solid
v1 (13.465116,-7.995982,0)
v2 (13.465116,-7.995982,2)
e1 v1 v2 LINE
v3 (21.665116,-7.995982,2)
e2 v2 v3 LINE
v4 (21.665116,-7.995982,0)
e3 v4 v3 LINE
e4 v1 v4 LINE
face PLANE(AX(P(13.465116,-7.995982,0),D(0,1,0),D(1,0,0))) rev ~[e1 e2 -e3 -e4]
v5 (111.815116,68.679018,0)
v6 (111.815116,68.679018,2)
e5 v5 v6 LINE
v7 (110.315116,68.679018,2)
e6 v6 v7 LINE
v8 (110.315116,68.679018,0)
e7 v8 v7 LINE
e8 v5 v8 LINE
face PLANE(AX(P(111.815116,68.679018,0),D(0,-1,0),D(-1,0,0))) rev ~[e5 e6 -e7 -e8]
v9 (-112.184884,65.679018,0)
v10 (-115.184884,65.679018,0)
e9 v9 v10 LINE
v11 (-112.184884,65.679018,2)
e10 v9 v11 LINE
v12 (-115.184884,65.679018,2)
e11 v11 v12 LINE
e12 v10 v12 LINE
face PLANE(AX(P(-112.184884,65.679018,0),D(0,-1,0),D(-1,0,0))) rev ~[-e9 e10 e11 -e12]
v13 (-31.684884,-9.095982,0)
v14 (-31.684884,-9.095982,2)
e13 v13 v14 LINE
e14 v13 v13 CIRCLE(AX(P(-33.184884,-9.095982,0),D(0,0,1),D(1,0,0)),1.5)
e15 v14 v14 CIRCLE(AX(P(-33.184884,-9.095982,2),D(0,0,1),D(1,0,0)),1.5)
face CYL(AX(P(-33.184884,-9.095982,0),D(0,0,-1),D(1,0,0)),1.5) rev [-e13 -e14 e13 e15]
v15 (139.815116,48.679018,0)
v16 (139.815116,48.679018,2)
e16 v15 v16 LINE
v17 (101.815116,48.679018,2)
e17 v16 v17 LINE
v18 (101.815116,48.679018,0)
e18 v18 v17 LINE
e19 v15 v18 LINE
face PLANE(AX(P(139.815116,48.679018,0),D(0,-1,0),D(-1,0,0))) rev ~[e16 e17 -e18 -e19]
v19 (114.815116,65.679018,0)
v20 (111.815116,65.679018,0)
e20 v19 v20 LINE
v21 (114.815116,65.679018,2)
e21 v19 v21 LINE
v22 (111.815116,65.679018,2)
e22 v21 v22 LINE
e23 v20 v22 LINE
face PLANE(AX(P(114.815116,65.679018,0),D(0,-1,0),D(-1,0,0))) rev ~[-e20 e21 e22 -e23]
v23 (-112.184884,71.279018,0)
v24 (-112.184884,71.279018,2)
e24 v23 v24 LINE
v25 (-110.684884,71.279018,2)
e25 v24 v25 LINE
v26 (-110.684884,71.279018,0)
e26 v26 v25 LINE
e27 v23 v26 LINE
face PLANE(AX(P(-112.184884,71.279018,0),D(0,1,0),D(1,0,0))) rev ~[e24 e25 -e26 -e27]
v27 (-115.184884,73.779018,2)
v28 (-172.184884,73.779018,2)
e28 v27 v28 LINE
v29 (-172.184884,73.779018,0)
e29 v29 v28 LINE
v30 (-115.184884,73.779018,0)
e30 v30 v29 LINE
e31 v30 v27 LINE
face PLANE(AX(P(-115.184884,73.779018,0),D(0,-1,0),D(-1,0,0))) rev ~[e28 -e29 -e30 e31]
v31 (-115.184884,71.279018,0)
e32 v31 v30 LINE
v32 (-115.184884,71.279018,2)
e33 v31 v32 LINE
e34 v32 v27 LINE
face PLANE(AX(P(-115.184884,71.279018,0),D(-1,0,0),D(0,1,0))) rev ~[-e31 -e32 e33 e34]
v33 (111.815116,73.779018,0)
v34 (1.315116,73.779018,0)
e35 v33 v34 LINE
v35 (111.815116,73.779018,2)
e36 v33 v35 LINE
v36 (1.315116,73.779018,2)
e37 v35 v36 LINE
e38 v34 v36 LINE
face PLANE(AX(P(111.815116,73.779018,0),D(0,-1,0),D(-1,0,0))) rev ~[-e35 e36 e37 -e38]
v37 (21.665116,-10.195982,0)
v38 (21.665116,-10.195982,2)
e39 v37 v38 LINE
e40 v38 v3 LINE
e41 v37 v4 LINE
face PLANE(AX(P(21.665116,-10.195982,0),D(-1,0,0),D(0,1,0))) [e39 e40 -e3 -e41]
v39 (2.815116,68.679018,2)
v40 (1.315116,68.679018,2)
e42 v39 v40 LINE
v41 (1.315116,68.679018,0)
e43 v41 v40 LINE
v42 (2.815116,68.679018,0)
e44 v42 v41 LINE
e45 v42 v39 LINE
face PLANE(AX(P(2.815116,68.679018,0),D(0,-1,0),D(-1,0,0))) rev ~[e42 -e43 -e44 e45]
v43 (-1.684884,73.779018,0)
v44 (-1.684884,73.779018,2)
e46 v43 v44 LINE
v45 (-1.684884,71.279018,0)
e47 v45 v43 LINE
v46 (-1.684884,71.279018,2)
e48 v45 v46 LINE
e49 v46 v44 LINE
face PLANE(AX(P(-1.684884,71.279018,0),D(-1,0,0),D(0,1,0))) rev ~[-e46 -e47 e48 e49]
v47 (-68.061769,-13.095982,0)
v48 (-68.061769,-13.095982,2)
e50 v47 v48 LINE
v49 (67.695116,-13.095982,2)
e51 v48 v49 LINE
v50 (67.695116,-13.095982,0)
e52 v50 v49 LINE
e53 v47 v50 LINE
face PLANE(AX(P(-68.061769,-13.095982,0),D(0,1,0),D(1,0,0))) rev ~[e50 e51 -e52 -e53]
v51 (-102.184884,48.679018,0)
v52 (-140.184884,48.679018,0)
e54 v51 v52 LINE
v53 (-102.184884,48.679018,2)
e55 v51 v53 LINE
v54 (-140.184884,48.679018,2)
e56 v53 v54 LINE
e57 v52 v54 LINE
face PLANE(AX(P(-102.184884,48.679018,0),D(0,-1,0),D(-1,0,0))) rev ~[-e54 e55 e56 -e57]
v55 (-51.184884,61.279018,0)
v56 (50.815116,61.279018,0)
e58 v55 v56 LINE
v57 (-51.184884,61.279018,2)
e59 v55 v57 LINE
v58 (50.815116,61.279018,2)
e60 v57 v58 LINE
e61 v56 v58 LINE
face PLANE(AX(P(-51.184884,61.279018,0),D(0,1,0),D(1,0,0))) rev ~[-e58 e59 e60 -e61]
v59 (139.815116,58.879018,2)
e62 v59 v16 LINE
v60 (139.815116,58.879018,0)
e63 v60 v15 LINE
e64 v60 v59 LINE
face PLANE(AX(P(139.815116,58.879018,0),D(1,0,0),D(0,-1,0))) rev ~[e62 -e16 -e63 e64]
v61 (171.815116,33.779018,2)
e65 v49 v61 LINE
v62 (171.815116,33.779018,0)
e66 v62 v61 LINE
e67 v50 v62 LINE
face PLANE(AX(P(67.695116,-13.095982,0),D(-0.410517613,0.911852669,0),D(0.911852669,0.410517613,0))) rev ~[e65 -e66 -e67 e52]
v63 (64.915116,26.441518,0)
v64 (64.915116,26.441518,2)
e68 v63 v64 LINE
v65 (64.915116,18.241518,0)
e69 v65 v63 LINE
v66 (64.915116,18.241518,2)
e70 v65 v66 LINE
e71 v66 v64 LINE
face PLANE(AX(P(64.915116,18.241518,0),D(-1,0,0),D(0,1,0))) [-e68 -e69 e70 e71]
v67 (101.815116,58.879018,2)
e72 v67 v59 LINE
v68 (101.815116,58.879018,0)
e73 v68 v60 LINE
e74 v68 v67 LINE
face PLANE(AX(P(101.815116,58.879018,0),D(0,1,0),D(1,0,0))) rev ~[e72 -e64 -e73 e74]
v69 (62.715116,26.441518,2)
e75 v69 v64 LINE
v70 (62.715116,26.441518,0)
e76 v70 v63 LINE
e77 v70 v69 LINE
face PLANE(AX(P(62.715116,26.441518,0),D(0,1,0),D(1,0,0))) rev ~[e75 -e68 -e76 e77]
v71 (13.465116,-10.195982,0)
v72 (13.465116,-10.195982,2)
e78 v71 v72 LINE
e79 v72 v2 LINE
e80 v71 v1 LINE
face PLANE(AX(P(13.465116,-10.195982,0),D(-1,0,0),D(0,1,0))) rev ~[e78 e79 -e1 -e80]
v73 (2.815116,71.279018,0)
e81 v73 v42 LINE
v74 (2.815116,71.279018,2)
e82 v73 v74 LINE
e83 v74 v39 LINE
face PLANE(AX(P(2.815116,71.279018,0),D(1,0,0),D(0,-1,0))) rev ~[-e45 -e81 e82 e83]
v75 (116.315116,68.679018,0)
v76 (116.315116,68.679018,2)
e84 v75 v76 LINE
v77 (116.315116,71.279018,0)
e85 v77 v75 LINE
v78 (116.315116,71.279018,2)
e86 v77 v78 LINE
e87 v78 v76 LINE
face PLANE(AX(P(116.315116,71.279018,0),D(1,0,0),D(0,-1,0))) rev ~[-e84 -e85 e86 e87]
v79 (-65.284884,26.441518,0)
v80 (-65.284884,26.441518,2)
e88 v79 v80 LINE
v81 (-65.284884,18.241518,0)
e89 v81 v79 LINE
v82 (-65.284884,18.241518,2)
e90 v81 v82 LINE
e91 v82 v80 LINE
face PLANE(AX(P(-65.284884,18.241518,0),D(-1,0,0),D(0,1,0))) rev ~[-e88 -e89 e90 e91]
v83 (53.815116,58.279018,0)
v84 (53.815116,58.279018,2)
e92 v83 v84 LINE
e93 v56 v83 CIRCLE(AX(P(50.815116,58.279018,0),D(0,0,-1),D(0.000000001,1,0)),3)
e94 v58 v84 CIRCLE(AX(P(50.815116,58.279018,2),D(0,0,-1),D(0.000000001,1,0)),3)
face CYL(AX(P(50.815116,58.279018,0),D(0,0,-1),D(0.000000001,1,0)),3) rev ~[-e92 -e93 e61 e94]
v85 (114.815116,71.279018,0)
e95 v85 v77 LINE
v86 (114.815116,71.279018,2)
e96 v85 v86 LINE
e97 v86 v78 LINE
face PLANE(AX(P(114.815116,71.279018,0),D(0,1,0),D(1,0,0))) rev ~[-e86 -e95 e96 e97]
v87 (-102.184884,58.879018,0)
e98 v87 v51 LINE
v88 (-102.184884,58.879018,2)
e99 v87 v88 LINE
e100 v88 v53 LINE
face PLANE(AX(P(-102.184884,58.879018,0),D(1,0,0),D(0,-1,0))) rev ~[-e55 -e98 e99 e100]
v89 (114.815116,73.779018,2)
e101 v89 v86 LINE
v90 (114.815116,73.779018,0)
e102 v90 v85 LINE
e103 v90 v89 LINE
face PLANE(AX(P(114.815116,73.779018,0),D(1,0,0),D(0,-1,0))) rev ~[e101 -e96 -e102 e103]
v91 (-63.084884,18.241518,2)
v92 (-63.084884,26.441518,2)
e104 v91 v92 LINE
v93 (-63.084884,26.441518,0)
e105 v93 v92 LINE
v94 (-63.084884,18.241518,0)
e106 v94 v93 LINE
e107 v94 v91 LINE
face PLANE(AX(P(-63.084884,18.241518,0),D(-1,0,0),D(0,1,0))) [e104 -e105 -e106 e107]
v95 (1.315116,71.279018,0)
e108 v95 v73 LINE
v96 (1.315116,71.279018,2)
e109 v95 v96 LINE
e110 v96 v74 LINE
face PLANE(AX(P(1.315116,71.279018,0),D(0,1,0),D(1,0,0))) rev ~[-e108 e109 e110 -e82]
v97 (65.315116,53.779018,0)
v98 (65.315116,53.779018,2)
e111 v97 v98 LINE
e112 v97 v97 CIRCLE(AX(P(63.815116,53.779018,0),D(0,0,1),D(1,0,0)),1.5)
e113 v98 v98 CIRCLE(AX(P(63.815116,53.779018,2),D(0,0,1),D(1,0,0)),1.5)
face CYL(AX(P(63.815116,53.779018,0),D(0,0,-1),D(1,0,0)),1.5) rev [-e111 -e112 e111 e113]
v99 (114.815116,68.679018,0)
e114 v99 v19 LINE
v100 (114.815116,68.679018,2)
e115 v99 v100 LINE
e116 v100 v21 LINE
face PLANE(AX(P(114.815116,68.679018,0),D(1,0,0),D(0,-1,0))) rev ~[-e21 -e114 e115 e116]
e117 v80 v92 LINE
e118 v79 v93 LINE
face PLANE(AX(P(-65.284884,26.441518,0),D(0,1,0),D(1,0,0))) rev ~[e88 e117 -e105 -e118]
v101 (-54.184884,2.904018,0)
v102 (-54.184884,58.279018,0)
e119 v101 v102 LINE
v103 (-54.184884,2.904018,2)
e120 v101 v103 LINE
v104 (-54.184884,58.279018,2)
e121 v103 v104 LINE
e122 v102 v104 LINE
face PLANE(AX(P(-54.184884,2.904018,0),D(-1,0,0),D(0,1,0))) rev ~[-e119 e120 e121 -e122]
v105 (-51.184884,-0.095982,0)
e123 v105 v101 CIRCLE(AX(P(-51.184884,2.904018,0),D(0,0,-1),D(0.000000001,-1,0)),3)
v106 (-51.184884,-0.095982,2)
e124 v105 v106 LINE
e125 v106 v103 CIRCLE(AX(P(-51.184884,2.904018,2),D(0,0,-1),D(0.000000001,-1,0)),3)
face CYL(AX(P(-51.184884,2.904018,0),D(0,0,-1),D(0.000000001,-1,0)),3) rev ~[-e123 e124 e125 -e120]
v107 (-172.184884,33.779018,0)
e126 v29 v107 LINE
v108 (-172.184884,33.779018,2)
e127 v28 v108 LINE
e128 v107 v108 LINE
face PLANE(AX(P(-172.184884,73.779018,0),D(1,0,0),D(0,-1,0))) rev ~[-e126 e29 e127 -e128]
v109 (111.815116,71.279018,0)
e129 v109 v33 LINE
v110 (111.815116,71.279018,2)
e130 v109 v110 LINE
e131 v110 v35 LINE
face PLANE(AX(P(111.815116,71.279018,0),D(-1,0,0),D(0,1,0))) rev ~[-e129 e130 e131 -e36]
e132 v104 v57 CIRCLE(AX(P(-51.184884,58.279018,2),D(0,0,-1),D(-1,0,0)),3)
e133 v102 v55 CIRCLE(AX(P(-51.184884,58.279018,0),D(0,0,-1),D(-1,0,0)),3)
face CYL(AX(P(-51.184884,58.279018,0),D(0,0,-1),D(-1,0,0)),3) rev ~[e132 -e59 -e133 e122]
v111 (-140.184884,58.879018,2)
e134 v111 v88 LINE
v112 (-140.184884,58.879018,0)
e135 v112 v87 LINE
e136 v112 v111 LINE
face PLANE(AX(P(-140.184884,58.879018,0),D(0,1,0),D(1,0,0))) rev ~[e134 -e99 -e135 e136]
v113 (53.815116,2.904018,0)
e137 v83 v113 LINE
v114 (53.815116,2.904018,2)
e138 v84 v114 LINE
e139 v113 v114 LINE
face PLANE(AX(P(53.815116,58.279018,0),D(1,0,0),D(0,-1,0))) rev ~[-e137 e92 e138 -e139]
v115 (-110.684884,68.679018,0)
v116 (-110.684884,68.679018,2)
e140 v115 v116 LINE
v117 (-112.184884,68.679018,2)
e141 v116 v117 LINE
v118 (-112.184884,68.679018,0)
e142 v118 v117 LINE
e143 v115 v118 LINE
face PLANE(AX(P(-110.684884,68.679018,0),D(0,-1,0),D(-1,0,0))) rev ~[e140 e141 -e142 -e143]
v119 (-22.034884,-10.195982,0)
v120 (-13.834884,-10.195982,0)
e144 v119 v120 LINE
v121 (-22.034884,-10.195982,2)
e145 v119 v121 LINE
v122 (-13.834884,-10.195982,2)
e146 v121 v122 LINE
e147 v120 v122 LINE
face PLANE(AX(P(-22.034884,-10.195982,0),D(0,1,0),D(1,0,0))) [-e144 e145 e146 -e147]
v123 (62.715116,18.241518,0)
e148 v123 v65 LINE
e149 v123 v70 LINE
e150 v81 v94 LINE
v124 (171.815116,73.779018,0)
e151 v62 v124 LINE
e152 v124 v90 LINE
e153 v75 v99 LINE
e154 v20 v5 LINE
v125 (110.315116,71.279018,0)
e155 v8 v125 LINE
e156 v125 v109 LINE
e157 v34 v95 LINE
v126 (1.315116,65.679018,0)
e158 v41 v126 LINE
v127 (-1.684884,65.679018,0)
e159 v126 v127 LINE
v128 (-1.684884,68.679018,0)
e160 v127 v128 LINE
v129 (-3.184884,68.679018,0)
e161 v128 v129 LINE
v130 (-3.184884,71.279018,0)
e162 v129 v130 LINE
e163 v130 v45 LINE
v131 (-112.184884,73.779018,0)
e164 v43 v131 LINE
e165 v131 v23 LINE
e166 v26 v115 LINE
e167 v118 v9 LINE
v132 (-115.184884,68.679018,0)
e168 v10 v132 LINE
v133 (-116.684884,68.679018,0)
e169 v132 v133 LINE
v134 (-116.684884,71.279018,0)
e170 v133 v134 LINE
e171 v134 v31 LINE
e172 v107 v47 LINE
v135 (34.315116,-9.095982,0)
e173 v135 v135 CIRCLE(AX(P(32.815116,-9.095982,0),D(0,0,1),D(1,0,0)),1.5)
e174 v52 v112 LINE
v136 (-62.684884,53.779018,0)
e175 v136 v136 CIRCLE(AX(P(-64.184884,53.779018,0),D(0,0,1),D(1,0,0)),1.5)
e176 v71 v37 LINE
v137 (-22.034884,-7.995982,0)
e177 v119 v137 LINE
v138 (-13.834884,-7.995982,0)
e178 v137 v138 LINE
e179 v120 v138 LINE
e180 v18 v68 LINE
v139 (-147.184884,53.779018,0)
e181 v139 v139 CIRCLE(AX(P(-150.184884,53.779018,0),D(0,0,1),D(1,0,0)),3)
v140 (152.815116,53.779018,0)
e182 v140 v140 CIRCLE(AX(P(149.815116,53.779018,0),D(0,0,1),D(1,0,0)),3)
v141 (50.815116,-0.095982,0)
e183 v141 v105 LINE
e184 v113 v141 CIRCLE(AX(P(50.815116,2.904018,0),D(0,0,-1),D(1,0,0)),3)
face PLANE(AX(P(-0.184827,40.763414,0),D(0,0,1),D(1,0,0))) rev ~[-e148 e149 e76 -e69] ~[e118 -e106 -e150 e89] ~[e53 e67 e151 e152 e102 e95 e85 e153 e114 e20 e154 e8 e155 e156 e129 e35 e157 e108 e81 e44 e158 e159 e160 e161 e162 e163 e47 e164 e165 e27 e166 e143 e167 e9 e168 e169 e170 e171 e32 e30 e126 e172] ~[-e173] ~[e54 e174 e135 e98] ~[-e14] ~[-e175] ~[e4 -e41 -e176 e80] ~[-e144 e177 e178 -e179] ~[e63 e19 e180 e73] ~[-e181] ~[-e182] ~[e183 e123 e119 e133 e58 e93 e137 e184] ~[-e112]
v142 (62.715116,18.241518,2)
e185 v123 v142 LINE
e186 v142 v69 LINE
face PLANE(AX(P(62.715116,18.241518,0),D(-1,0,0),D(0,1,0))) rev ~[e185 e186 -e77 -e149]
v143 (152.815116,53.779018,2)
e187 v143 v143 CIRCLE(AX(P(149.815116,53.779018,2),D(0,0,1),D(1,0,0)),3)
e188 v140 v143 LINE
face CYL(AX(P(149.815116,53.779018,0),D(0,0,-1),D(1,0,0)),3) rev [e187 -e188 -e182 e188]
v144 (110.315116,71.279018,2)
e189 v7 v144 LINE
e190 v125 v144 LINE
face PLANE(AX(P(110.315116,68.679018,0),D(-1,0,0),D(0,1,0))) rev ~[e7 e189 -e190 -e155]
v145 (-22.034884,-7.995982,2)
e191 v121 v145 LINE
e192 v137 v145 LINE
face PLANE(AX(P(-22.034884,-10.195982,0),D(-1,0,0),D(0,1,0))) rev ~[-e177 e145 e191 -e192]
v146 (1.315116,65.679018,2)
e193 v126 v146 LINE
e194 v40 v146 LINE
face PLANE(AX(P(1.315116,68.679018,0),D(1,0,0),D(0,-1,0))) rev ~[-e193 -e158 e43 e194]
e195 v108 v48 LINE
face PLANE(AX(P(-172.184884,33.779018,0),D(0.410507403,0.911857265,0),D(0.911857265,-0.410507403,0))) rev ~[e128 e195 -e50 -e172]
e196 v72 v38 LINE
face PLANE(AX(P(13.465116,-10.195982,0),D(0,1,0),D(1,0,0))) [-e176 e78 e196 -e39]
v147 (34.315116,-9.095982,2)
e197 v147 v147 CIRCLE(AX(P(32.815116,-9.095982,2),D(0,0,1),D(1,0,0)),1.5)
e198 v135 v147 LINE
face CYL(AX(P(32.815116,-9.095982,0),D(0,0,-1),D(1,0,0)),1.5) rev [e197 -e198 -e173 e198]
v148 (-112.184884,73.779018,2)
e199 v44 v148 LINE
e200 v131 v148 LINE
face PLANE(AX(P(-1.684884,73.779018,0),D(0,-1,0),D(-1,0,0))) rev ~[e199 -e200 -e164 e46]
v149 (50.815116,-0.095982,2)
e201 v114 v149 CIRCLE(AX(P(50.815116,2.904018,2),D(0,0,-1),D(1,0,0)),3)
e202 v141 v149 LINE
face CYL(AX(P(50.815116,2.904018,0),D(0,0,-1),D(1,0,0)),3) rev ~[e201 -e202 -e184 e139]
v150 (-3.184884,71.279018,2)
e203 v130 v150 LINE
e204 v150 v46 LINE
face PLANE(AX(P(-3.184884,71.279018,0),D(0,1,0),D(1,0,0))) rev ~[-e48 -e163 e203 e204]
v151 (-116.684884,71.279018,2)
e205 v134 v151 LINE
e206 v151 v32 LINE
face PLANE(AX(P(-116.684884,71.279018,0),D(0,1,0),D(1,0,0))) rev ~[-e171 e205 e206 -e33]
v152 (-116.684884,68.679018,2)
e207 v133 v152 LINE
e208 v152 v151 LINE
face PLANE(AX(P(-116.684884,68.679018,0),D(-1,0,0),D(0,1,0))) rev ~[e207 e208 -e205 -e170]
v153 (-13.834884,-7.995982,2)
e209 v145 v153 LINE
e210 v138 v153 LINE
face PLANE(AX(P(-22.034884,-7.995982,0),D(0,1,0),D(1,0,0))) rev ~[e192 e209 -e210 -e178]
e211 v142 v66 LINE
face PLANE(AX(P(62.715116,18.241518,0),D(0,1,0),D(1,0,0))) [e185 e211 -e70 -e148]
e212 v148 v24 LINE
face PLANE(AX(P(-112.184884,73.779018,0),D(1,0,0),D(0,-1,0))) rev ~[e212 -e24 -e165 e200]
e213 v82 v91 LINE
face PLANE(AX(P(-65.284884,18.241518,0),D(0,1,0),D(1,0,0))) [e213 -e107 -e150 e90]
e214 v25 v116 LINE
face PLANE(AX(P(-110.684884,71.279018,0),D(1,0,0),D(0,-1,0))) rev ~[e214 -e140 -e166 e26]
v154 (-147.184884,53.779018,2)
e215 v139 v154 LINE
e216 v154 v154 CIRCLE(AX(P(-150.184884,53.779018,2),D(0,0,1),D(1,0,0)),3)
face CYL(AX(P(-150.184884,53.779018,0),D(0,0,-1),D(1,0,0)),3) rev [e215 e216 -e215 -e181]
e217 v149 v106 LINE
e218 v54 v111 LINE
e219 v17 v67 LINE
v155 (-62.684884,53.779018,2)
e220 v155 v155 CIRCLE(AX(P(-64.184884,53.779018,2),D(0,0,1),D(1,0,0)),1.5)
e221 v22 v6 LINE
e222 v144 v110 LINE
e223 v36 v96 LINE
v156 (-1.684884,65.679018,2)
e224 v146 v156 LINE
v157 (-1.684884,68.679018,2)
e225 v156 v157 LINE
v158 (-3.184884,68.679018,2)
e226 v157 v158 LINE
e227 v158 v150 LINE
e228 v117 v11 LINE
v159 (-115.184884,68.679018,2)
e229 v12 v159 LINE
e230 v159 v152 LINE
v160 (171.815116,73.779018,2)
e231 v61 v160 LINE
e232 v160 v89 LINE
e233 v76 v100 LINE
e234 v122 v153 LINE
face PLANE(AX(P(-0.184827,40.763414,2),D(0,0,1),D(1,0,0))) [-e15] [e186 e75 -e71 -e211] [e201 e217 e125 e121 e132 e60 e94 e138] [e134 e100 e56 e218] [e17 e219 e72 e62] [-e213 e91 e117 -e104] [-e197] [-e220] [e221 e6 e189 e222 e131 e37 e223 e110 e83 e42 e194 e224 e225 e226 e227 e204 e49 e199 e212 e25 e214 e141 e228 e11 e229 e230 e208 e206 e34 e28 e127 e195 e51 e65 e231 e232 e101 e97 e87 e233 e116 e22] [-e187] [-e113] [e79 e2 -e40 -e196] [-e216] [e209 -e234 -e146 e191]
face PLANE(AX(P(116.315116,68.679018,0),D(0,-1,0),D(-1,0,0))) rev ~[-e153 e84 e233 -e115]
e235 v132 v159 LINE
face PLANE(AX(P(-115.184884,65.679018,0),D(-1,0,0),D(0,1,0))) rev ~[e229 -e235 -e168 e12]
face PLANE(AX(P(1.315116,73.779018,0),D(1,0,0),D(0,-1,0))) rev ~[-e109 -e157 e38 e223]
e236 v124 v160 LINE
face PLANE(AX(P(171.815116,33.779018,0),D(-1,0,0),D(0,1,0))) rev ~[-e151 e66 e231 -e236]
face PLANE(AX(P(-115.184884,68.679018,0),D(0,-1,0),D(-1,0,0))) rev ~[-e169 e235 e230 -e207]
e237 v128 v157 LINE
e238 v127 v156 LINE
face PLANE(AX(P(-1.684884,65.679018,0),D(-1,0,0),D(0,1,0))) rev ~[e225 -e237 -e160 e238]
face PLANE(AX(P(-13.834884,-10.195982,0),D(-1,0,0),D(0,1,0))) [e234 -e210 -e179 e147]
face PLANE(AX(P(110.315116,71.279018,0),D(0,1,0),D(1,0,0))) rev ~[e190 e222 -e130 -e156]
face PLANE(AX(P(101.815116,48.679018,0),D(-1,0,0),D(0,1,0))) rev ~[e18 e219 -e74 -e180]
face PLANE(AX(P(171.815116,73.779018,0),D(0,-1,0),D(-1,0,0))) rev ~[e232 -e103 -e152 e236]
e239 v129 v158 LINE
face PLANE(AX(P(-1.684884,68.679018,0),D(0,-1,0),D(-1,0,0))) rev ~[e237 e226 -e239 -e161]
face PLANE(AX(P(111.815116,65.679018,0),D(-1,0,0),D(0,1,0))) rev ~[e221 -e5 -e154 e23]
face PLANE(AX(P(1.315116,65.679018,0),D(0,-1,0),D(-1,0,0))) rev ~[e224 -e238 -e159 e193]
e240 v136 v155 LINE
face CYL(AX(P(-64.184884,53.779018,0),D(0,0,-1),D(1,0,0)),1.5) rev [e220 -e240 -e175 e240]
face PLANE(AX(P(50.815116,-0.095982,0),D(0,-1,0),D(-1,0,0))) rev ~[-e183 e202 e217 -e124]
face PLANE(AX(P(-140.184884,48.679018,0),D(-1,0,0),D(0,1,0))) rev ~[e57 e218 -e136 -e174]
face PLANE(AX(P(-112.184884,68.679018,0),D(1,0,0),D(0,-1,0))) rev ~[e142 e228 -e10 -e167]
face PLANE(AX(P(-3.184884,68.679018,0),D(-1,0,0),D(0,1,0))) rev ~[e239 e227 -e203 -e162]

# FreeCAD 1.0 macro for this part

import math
import FreeCAD as App
import Part
import Sketcher
from FreeCAD import Vector
Q = App.Units.Quantity

doc = App.newDocument("Part")
params = doc.addObject("Spreadsheet::Sheet", "Params")
for row, (alias, value) in enumerate([
    ("sketch1_diameter", "3 mm"),
    ("sketch1_diameter2", "6 mm"),
    ("sketch1_width", "57 mm"),
    ("sketch1_width2", "3 mm"),
    ("sketch1_width3", "102 mm"),
    ("pad1_length", "2 mm"),
], start=1):
    params.set(f"A{row}", alias)
    params.set(f"B{row}", "=" + value)
    params.setAlias(f"B{row}", alias)

body = doc.addObject("PartDesign::Body", "Body")

# Sketch on XY plane
sketch1 = body.newObject("Sketcher::SketchObject", "Sketch")
sketch1.AttachmentSupport = (doc.getObject("XY_Plane"), [""])
sketch1.MapMode = "FlatFace"
sketch1.addGeometry(Part.LineSegment(Vector(-68.1, -13.1, 0), Vector(67.7, -13.1, 0)), False)
sketch1.addGeometry(Part.LineSegment(Vector(67.7, -13.1, 0), Vector(171.8, 33.8, 0)), False)
sketch1.addGeometry(Part.LineSegment(Vector(171.8, 33.8, 0), Vector(171.8, 73.8, 0)), False)
sketch1.addGeometry(Part.LineSegment(Vector(171.8, 73.8, 0), Vector(114.8, 73.8, 0)), False)
sketch1.addGeometry(Part.LineSegment(Vector(114.8, 73.8, 0), Vector(114.8, 71.3, 0)), False)
sketch1.addGeometry(Part.LineSegment(Vector(114.8, 71.3, 0), Vector(116.3, 71.3, 0)), False)
sketch1.addGeometry(Part.LineSegment(Vector(116.3, 71.3, 0), Vector(116.3, 68.7, 0)), False)
sketch1.addGeometry(Part.LineSegment(Vector(116.3, 68.7, 0), Vector(114.8, 68.7, 0)), False)
sketch1.addGeometry(Part.LineSegment(Vector(114.8, 68.7, 0), Vector(114.8, 65.7, 0)), False)
sketch1.addGeometry(Part.LineSegment(Vector(114.8, 65.7, 0), Vector(111.8, 65.7, 0)), False)
sketch1.addGeometry(Part.LineSegment(Vector(111.8, 65.7, 0), Vector(111.8, 68.7, 0)), False)
sketch1.addGeometry(Part.LineSegment(Vector(111.8, 68.7, 0), Vector(110.3, 68.7, 0)), False)
sketch1.addGeometry(Part.LineSegment(Vector(110.3, 68.7, 0), Vector(110.3, 71.3, 0)), False)
sketch1.addGeometry(Part.LineSegment(Vector(110.3, 71.3, 0), Vector(111.8, 71.3, 0)), False)
sketch1.addGeometry(Part.LineSegment(Vector(111.8, 71.3, 0), Vector(111.8, 73.8, 0)), False)
sketch1.addGeometry(Part.LineSegment(Vector(111.8, 73.8, 0), Vector(1.3, 73.8, 0)), False)
sketch1.addGeometry(Part.LineSegment(Vector(1.3, 73.8, 0), Vector(1.3, 71.3, 0)), False)
sketch1.addGeometry(Part.LineSegment(Vector(1.3, 71.3, 0), Vector(2.8, 71.3, 0)), False)
sketch1.addGeometry(Part.LineSegment(Vector(2.8, 71.3, 0), Vector(2.8, 68.7, 0)), False)
sketch1.addGeometry(Part.LineSegment(Vector(2.8, 68.7, 0), Vector(1.3, 68.7, 0)), False)
sketch1.addGeometry(Part.LineSegment(Vector(1.3, 68.7, 0), Vector(1.3, 65.7, 0)), False)
sketch1.addGeometry(Part.LineSegment(Vector(1.3, 65.7, 0), Vector(-1.7, 65.7, 0)), False)
sketch1.addGeometry(Part.LineSegment(Vector(-1.7, 65.7, 0), Vector(-1.7, 68.7, 0)), False)
sketch1.addGeometry(Part.LineSegment(Vector(-1.7, 68.7, 0), Vector(-3.2, 68.7, 0)), False)
sketch1.addGeometry(Part.LineSegment(Vector(-3.2, 68.7, 0), Vector(-3.2, 71.3, 0)), False)
sketch1.addGeometry(Part.LineSegment(Vector(-3.2, 71.3, 0), Vector(-1.7, 71.3, 0)), False)
sketch1.addGeometry(Part.LineSegment(Vector(-1.7, 71.3, 0), Vector(-1.7, 73.8, 0)), False)
sketch1.addGeometry(Part.LineSegment(Vector(-1.7, 73.8, 0), Vector(-112.2, 73.8, 0)), False)
sketch1.addGeometry(Part.LineSegment(Vector(-112.2, 73.8, 0), Vector(-112.2, 71.3, 0)), False)
sketch1.addGeometry(Part.LineSegment(Vector(-112.2, 71.3, 0), Vector(-110.7, 71.3, 0)), False)
sketch1.addGeometry(Part.LineSegment(Vector(-110.7, 71.3, 0), Vector(-110.7, 68.7, 0)), False)
sketch1.addGeometry(Part.LineSegment(Vector(-110.7, 68.7, 0), Vector(-112.2, 68.7, 0)), False)
sketch1.addGeometry(Part.LineSegment(Vector(-112.2, 68.7, 0), Vector(-112.2, 65.7, 0)), False)
sketch1.addGeometry(Part.LineSegment(Vector(-112.2, 65.7, 0), Vector(-115.2, 65.7, 0)), False)
sketch1.addGeometry(Part.LineSegment(Vector(-115.2, 65.7, 0), Vector(-115.2, 68.7, 0)), False)
sketch1.addGeometry(Part.LineSegment(Vector(-115.2, 68.7, 0), Vector(-116.7, 68.7, 0)), False)
sketch1.addGeometry(Part.LineSegment(Vector(-116.7, 68.7, 0), Vector(-116.7, 71.3, 0)), False)
sketch1.addGeometry(Part.LineSegment(Vector(-116.7, 71.3, 0), Vector(-115.2, 71.3, 0)), False)
sketch1.addGeometry(Part.LineSegment(Vector(-115.2, 71.3, 0), Vector(-115.2, 73.8, 0)), False)
sketch1.addGeometry(Part.LineSegment(Vector(-115.2, 73.8, 0), Vector(-172.2, 73.8, 0)), False)
sketch1.addGeometry(Part.LineSegment(Vector(-172.2, 73.8, 0), Vector(-172.2, 33.8, 0)), False)
sketch1.addGeometry(Part.LineSegment(Vector(-172.2, 33.8, 0), Vector(-68.1, -13.1, 0)), False)
sketch1.addGeometry(Part.Circle(Vector(-33.2, -9.1, 0), Vector(0, 0, 1), 1.5), False)
sketch1.addGeometry(Part.LineSegment(Vector(-13.8, -10.2, 0), Vector(-22, -10.2, 0)), False)
sketch1.addGeometry(Part.LineSegment(Vector(-22, -10.2, 0), Vector(-22, -8, 0)), False)
sketch1.addGeometry(Part.LineSegment(Vector(-22, -8, 0), Vector(-13.8, -8, 0)), False)
sketch1.addGeometry(Part.LineSegment(Vector(-13.8, -8, 0), Vector(-13.8, -10.2, 0)), False)
sketch1.addGeometry(Part.LineSegment(Vector(-63.1, 18.2, 0), Vector(-65.3, 18.2, 0)), False)
sketch1.addGeometry(Part.LineSegment(Vector(-65.3, 18.2, 0), Vector(-65.3, 26.4, 0)), False)
sketch1.addGeometry(Part.LineSegment(Vector(-65.3, 26.4, 0), Vector(-63.1, 26.4, 0)), False)
sketch1.addGeometry(Part.LineSegment(Vector(-63.1, 26.4, 0), Vector(-63.1, 18.2, 0)), False)
sketch1.addGeometry(Part.LineSegment(Vector(21.7, -10.2, 0), Vector(13.5, -10.2, 0)), False)
sketch1.addGeometry(Part.LineSegment(Vector(13.5, -10.2, 0), Vector(13.5, -8, 0)), False)
sketch1.addGeometry(Part.LineSegment(Vector(13.5, -8, 0), Vector(21.7, -8, 0)), False)
sketch1.addGeometry(Part.LineSegment(Vector(21.7, -8, 0), Vector(21.7, -10.2, 0)), False)
sketch1.addGeometry(Part.Circle(Vector(32.8, -9.1, 0), Vector(0, 0, 1), 1.5), False)
sketch1.addGeometry(Part.LineSegment(Vector(64.9, 18.2, 0), Vector(62.7, 18.2, 0)), False)
sketch1.addGeometry(Part.LineSegment(Vector(62.7, 18.2, 0), Vector(62.7, 26.4, 0)), False)
sketch1.addGeometry(Part.LineSegment(Vector(62.7, 26.4, 0), Vector(64.9, 26.4, 0)), False)
sketch1.addGeometry(Part.LineSegment(Vector(64.9, 26.4, 0), Vector(64.9, 18.2, 0)), False)
sketch1.addGeometry(Part.LineSegment(Vector(-51.2, 61.3, 0), Vector(50.8, 61.3, 0)), False)
sketch1.addGeometry(Part.ArcOfCircle(Part.Circle(Vector(50.8, 58.3, 0), Vector(0, 0, 1), 3), math.radians(0), math.radians(90)), False)
sketch1.addGeometry(Part.LineSegment(Vector(53.8, 58.3, 0), Vector(53.8, 2.9, 0)), False)
sketch1.addGeometry(Part.ArcOfCircle(Part.Circle(Vector(50.8, 2.9, 0), Vector(0, 0, 1), 3), math.radians(-90), math.radians(0)), False)
sketch1.addGeometry(Part.LineSegment(Vector(50.8, -0.1, 0), Vector(-51.2, -0.1, 0)), False)
sketch1.addGeometry(Part.ArcOfCircle(Part.Circle(Vector(-51.2, 2.9, 0), Vector(0, 0, 1), 3), math.radians(180), math.radians(270)), False)
sketch1.addGeometry(Part.LineSegment(Vector(-54.2, 2.9, 0), Vector(-54.2, 58.3, 0)), False)
sketch1.addGeometry(Part.ArcOfCircle(Part.Circle(Vector(-51.2, 58.3, 0), Vector(0, 0, 1), 3), math.radians(90), math.radians(180)), False)
sketch1.addGeometry(Part.Circle(Vector(-150.2, 53.8, 0), Vector(0, 0, 1), 3), False)
sketch1.addGeometry(Part.LineSegment(Vector(-140.2, 48.7, 0), Vector(-140.2, 58.9, 0)), False)
sketch1.addGeometry(Part.LineSegment(Vector(-140.2, 58.9, 0), Vector(-102.2, 58.9, 0)), False)
sketch1.addGeometry(Part.LineSegment(Vector(-102.2, 58.9, 0), Vector(-102.2, 48.7, 0)), False)
sketch1.addGeometry(Part.LineSegment(Vector(-102.2, 48.7, 0), Vector(-140.2, 48.7, 0)), False)
sketch1.addGeometry(Part.Circle(Vector(-64.2, 53.8, 0), Vector(0, 0, 1), 1.5), False)
sketch1.addGeometry(Part.Circle(Vector(63.8, 53.8, 0), Vector(0, 0, 1), 1.5), False)
sketch1.addGeometry(Part.LineSegment(Vector(139.8, 58.9, 0), Vector(139.8, 48.7, 0)), False)
sketch1.addGeometry(Part.LineSegment(Vector(139.8, 48.7, 0), Vector(101.8, 48.7, 0)), False)
sketch1.addGeometry(Part.LineSegment(Vector(101.8, 48.7, 0), Vector(101.8, 58.9, 0)), False)
sketch1.addGeometry(Part.LineSegment(Vector(101.8, 58.9, 0), Vector(139.8, 58.9, 0)), False)
sketch1.addGeometry(Part.Circle(Vector(149.8, 53.8, 0), Vector(0, 0, 1), 3), False)
sketch1.addConstraint(Sketcher.Constraint("Coincident", 0, 2, 1, 1))
sketch1.addConstraint(Sketcher.Constraint("Coincident", 1, 2, 2, 1))
sketch1.addConstraint(Sketcher.Constraint("Coincident", 2, 2, 3, 1))
sketch1.addConstraint(Sketcher.Constraint("Coincident", 3, 2, 4, 1))
sketch1.addConstraint(Sketcher.Constraint("Coincident", 4, 2, 5, 1))
sketch1.addConstraint(Sketcher.Constraint("Coincident", 5, 2, 6, 1))
sketch1.addConstraint(Sketcher.Constraint("Coincident", 6, 2, 7, 1))
sketch1.addConstraint(Sketcher.Constraint("Coincident", 7, 2, 8, 1))
sketch1.addConstraint(Sketcher.Constraint("Coincident", 8, 2, 9, 1))
sketch1.addConstraint(Sketcher.Constraint("Coincident", 9, 2, 10, 1))
sketch1.addConstraint(Sketcher.Constraint("Coincident", 10, 2, 11, 1))
sketch1.addConstraint(Sketcher.Constraint("Coincident", 11, 2, 12, 1))
sketch1.addConstraint(Sketcher.Constraint("Coincident", 12, 2, 13, 1))
sketch1.addConstraint(Sketcher.Constraint("Coincident", 13, 2, 14, 1))
sketch1.addConstraint(Sketcher.Constraint("Coincident", 14, 2, 15, 1))
sketch1.addConstraint(Sketcher.Constraint("Coincident", 15, 2, 16, 1))
sketch1.addConstraint(Sketcher.Constraint("Coincident", 16, 2, 17, 1))
sketch1.addConstraint(Sketcher.Constraint("Coincident", 17, 2, 18, 1))
sketch1.addConstraint(Sketcher.Constraint("Coincident", 18, 2, 19, 1))
sketch1.addConstraint(Sketcher.Constraint("Coincident", 19, 2, 20, 1))
sketch1.addConstraint(Sketcher.Constraint("Coincident", 20, 2, 21, 1))
sketch1.addConstraint(Sketcher.Constraint("Coincident", 21, 2, 22, 1))
sketch1.addConstraint(Sketcher.Constraint("Coincident", 22, 2, 23, 1))
sketch1.addConstraint(Sketcher.Constraint("Coincident", 23, 2, 24, 1))
sketch1.addConstraint(Sketcher.Constraint("Coincident", 24, 2, 25, 1))
sketch1.addConstraint(Sketcher.Constraint("Coincident", 25, 2, 26, 1))
sketch1.addConstraint(Sketcher.Constraint("Coincident", 26, 2, 27, 1))
sketch1.addConstraint(Sketcher.Constraint("Coincident", 27, 2, 28, 1))
sketch1.addConstraint(Sketcher.Constraint("Coincident", 28, 2, 29, 1))
sketch1.addConstraint(Sketcher.Constraint("Coincident", 29, 2, 30, 1))
sketch1.addConstraint(Sketcher.Constraint("Coincident", 30, 2, 31, 1))
sketch1.addConstraint(Sketcher.Constraint("Coincident", 31, 2, 32, 1))
sketch1.addConstraint(Sketcher.Constraint("Coincident", 32, 2, 33, 1))
sketch1.addConstraint(Sketcher.Constraint("Coincident", 33, 2, 34, 1))
sketch1.addConstraint(Sketcher.Constraint("Coincident", 34, 2, 35, 1))
sketch1.addConstraint(Sketcher.Constraint("Coincident", 35, 2, 36, 1))
sketch1.addConstraint(Sketcher.Constraint("Coincident", 36, 2, 37, 1))
sketch1.addConstraint(Sketcher.Constraint("Coincident", 37, 2, 38, 1))
sketch1.addConstraint(Sketcher.Constraint("Coincident", 38, 2, 39, 1))
sketch1.addConstraint(Sketcher.Constraint("Coincident", 39, 2, 40, 1))
sketch1.addConstraint(Sketcher.Constraint("Coincident", 40, 2, 41, 1))
sketch1.addConstraint(Sketcher.Constraint("Coincident", 41, 2, 0, 1))
sketch1.addConstraint(Sketcher.Constraint("Coincident", 43, 2, 44, 1))
sketch1.addConstraint(Sketcher.Constraint("Coincident", 44, 2, 45, 1))
sketch1.addConstraint(Sketcher.Constraint("Coincident", 45, 2, 46, 1))
sketch1.addConstraint(Sketcher.Constraint("Coincident", 46, 2, 43, 1))
sketch1.addConstraint(Sketcher.Constraint("Coincident", 47, 2, 48, 1))
sketch1.addConstraint(Sketcher.Constraint("Coincident", 48, 2, 49, 1))
sketch1.addConstraint(Sketcher.Constraint("Coincident", 49, 2, 50, 1))
sketch1.addConstraint(Sketcher.Constraint("Coincident", 50, 2, 47, 1))
sketch1.addConstraint(Sketcher.Constraint("Coincident", 51, 2, 52, 1))
sketch1.addConstraint(Sketcher.Constraint("Coincident", 52, 2, 53, 1))
sketch1.addConstraint(Sketcher.Constraint("Coincident", 53, 2, 54, 1))
sketch1.addConstraint(Sketcher.Constraint("Coincident", 54, 2, 51, 1))
sketch1.addConstraint(Sketcher.Constraint("Coincident", 56, 2, 57, 1))
sketch1.addConstraint(Sketcher.Constraint("Coincident", 57, 2, 58, 1))
sketch1.addConstraint(Sketcher.Constraint("Coincident", 58, 2, 59, 1))
sketch1.addConstraint(Sketcher.Constraint("Coincident", 59, 2, 56, 1))
sketch1.addConstraint(Sketcher.Constraint("Tangent", 60, 2, 61, 2))
sketch1.addConstraint(Sketcher.Constraint("Tangent", 61, 1, 62, 1))
sketch1.addConstraint(Sketcher.Constraint("Tangent", 62, 2, 63, 2))
sketch1.addConstraint(Sketcher.Constraint("Tangent", 63, 1, 64, 1))
sketch1.addConstraint(Sketcher.Constraint("Tangent", 64, 2, 65, 2))
sketch1.addConstraint(Sketcher.Constraint("Tangent", 65, 1, 66, 1))
sketch1.addConstraint(Sketcher.Constraint("Tangent", 66, 2, 67, 2))
sketch1.addConstraint(Sketcher.Constraint("Tangent", 67, 1, 60, 1))
sketch1.addConstraint(Sketcher.Constraint("Coincident", 69, 2, 70, 1))
sketch1.addConstraint(Sketcher.Constraint("Coincident", 70, 2, 71, 1))
sketch1.addConstraint(Sketcher.Constraint("Coincident", 71, 2, 72, 1))
sketch1.addConstraint(Sketcher.Constraint("Coincident", 72, 2, 69, 1))
sketch1.addConstraint(Sketcher.Constraint("Coincident", 75, 2, 76, 1))
sketch1.addConstraint(Sketcher.Constraint("Coincident", 76, 2, 77, 1))
sketch1.addConstraint(Sketcher.Constraint("Coincident", 77, 2, 78, 1))
sketch1.addConstraint(Sketcher.Constraint("Coincident", 78, 2, 75, 1))
sketch1.addConstraint(Sketcher.Constraint("Horizontal", 0))
sketch1.addConstraint(Sketcher.Constraint("Vertical", 2))
sketch1.addConstraint(Sketcher.Constraint("Horizontal", 3))
sketch1.addConstraint(Sketcher.Constraint("Vertical", 4))
sketch1.addConstraint(Sketcher.Constraint("Horizontal", 5))
sketch1.addConstraint(Sketcher.Constraint("Vertical", 6))
sketch1.addConstraint(Sketcher.Constraint("Horizontal", 7))
sketch1.addConstraint(Sketcher.Constraint("Vertical", 8))
sketch1.addConstraint(Sketcher.Constraint("Horizontal", 9))
sketch1.addConstraint(Sketcher.Constraint("Vertical", 10))
sketch1.addConstraint(Sketcher.Constraint("Horizontal", 11))
sketch1.addConstraint(Sketcher.Constraint("Vertical", 12))
sketch1.addConstraint(Sketcher.Constraint("Horizontal", 13))
sketch1.addConstraint(Sketcher.Constraint("Vertical", 14))
sketch1.addConstraint(Sketcher.Constraint("Horizontal", 15))
sketch1.addConstraint(Sketcher.Constraint("Vertical", 16))
sketch1.addConstraint(Sketcher.Constraint("Horizontal", 17))
sketch1.addConstraint(Sketcher.Constraint("Vertical", 18))
sketch1.addConstraint(Sketcher.Constraint("Horizontal", 19))
sketch1.addConstraint(Sketcher.Constraint("Vertical", 20))
sketch1.addConstraint(Sketcher.Constraint("Horizontal", 21))
sketch1.addConstraint(Sketcher.Constraint("Vertical", 22))
sketch1.addConstraint(Sketcher.Constraint("Horizontal", 23))
sketch1.addConstraint(Sketcher.Constraint("Vertical", 24))
sketch1.addConstraint(Sketcher.Constraint("Horizontal", 25))
sketch1.addConstraint(Sketcher.Constraint("Vertical", 26))
sketch1.addConstraint(Sketcher.Constraint("Horizontal", 27))
sketch1.addConstraint(Sketcher.Constraint("Vertical", 28))
sketch1.addConstraint(Sketcher.Constraint("Horizontal", 29))
sketch1.addConstraint(Sketcher.Constraint("Vertical", 30))
sketch1.addConstraint(Sketcher.Constraint("Horizontal", 31))
sketch1.addConstraint(Sketcher.Constraint("Vertical", 32))
sketch1.addConstraint(Sketcher.Constraint("Horizontal", 33))
sketch1.addConstraint(Sketcher.Constraint("Vertical", 34))
sketch1.addConstraint(Sketcher.Constraint("Horizontal", 35))
sketch1.addConstraint(Sketcher.Constraint("Vertical", 36))
sketch1.addConstraint(Sketcher.Constraint("Horizontal", 37))
sketch1.addConstraint(Sketcher.Constraint("Vertical", 38))
sketch1.addConstraint(Sketcher.Constraint("Horizontal", 39))
sketch1.addConstraint(Sketcher.Constraint("Vertical", 40))
sketch1.addConstraint(Sketcher.Constraint("Horizontal", 43))
sketch1.addConstraint(Sketcher.Constraint("Vertical", 44))
sketch1.addConstraint(Sketcher.Constraint("Horizontal", 45))
sketch1.addConstraint(Sketcher.Constraint("Vertical", 46))
sketch1.addConstraint(Sketcher.Constraint("Horizontal", 47))
sketch1.addConstraint(Sketcher.Constraint("Vertical", 48))
sketch1.addConstraint(Sketcher.Constraint("Horizontal", 49))
sketch1.addConstraint(Sketcher.Constraint("Vertical", 50))
sketch1.addConstraint(Sketcher.Constraint("Horizontal", 51))
sketch1.addConstraint(Sketcher.Constraint("Vertical", 52))
sketch1.addConstraint(Sketcher.Constraint("Horizontal", 53))
sketch1.addConstraint(Sketcher.Constraint("Vertical", 54))
sketch1.addConstraint(Sketcher.Constraint("Horizontal", 56))
sketch1.addConstraint(Sketcher.Constraint("Vertical", 57))
sketch1.addConstraint(Sketcher.Constraint("Horizontal", 58))
sketch1.addConstraint(Sketcher.Constraint("Vertical", 59))
sketch1.addConstraint(Sketcher.Constraint("Horizontal", 60))
sketch1.addConstraint(Sketcher.Constraint("Vertical", 62))
sketch1.addConstraint(Sketcher.Constraint("Horizontal", 64))
sketch1.addConstraint(Sketcher.Constraint("Vertical", 66))
sketch1.addConstraint(Sketcher.Constraint("Vertical", 69))
sketch1.addConstraint(Sketcher.Constraint("Horizontal", 70))
sketch1.addConstraint(Sketcher.Constraint("Vertical", 71))
sketch1.addConstraint(Sketcher.Constraint("Horizontal", 72))
sketch1.addConstraint(Sketcher.Constraint("Vertical", 75))
sketch1.addConstraint(Sketcher.Constraint("Horizontal", 76))
sketch1.addConstraint(Sketcher.Constraint("Vertical", 77))
sketch1.addConstraint(Sketcher.Constraint("Horizontal", 78))
sketch1.addConstraint(Sketcher.Constraint("Equal", 42, 55))
sketch1.addConstraint(Sketcher.Constraint("Equal", 61, 63))
sketch1.addConstraint(Sketcher.Constraint("Equal", 63, 65))
sketch1.addConstraint(Sketcher.Constraint("Equal", 65, 67))
sketch1.addConstraint(Sketcher.Constraint("Equal", 67, 68))
sketch1.addConstraint(Sketcher.Constraint("Equal", 55, 73))
sketch1.addConstraint(Sketcher.Constraint("Equal", 73, 74))
sketch1.addConstraint(Sketcher.Constraint("Equal", 68, 79))
sketch1.addConstraint(Sketcher.Constraint("Horizontal", 42, 3, 55, 3))
sketch1.addConstraint(Sketcher.Constraint("Horizontal", 68, 3, 73, 3))
sketch1.addConstraint(Sketcher.Constraint("Horizontal", 73, 3, 74, 3))
sketch1.addConstraint(Sketcher.Constraint("Horizontal", 74, 3, 79, 3))
sketch1.addConstraint(Sketcher.Constraint("Horizontal", 7, 2, 10, 2))
sketch1.addConstraint(Sketcher.Constraint("Horizontal", 5, 2, 12, 2))
sketch1.addConstraint(Sketcher.Constraint("Horizontal", 3, 2, 14, 2))
sketch1.addConstraint(Sketcher.Constraint("Horizontal", 13, 2, 16, 2))
sketch1.addConstraint(Sketcher.Constraint("Horizontal", 11, 2, 18, 2))
sketch1.addConstraint(Sketcher.Constraint("Horizontal", 9, 2, 20, 2))
sketch1.addConstraint(Sketcher.Constraint("Horizontal", 19, 2, 22, 2))
sketch1.addConstraint(Sketcher.Constraint("Horizontal", 17, 2, 24, 2))
sketch1.addConstraint(Sketcher.Constraint("Horizontal", 15, 2, 26, 2))
sketch1.addConstraint(Sketcher.Constraint("Horizontal", 25, 2, 28, 2))
sketch1.addConstraint(Sketcher.Constraint("Horizontal", 23, 2, 30, 2))
sketch1.addConstraint(Sketcher.Constraint("Horizontal", 21, 2, 32, 2))
sketch1.addConstraint(Sketcher.Constraint("Horizontal", 31, 2, 34, 2))
sketch1.addConstraint(Sketcher.Constraint("Horizontal", 29, 2, 36, 2))
sketch1.addConstraint(Sketcher.Constraint("Horizontal", 27, 2, 38, 2))
sketch1.addConstraint(Sketcher.Constraint("Horizontal", 1, 2, 40, 2))
sketch1.addConstraint(Sketcher.Constraint("Horizontal", 46, 2, 51, 2))
sketch1.addConstraint(Sketcher.Constraint("Horizontal", 45, 2, 52, 2))
sketch1.addConstraint(Sketcher.Constraint("Horizontal", 50, 2, 56, 2))
sketch1.addConstraint(Sketcher.Constraint("Horizontal", 49, 2, 57, 2))
sketch1.addConstraint(Sketcher.Constraint("Horizontal", 72, 2, 75, 2))
sketch1.addConstraint(Sketcher.Constraint("Horizontal", 70, 2, 77, 2))
sketch1.addConstraint(Sketcher.Constraint("Vertical", 4, 2, 7, 2))
sketch1.addConstraint(Sketcher.Constraint("Vertical", 10, 2, 13, 2))
sketch1.addConstraint(Sketcher.Constraint("Vertical", 16, 2, 19, 2))
sketch1.addConstraint(Sketcher.Constraint("Vertical", 22, 2, 25, 2))
sketch1.addConstraint(Sketcher.Constraint("Vertical", 28, 2, 31, 2))
sketch1.addConstraint(Sketcher.Constraint("Vertical", 34, 2, 37, 2))
sketch1.addConstraint(Sketcher.Constraint("Equal", 7, 11))
sketch1.addConstraint(Sketcher.Constraint("Equal", 13, 17))
sketch1.addConstraint(Sketcher.Constraint("Equal", 9, 21))
sketch1.addConstraint(Sketcher.Constraint("Equal", 19, 23))
sketch1.addConstraint(Sketcher.Constraint("Equal", 15, 27))
sketch1.addConstraint(Sketcher.Constraint("Equal", 25, 29))
sketch1.addConstraint(Sketcher.Constraint("Equal", 21, 33))
sketch1.addConstraint(Sketcher.Constraint("Equal", 31, 35))
sketch1.addConstraint(Sketcher.Constraint("Equal", 3, 39))
sketch1.addConstraint(Sketcher.Constraint("Equal", 45, 51))
sketch1.addConstraint(Sketcher.Constraint("Equal", 49, 56))
sketch1.addConstraint(Sketcher.Constraint("Equal", 72, 76))
sketch1.addConstraint(Sketcher.Constraint("Equal", 33, 8))
sketch1.addConstraint(Sketcher.Constraint("Equal", 58, 44))
sketch1.addConstraint(Sketcher.Constraint("Equal", 53, 48))
sketch1.addConstraint(Sketcher.Constraint("Diameter", 42, Q("3 mm")))
sketch1.addConstraint(Sketcher.Constraint("Diameter", 68, Q("6 mm")))
sketch1.addConstraint(Sketcher.Constraint("DistanceX", 3, 2, 3, 1, Q("57 mm")))
sketch1.addConstraint(Sketcher.Constraint("DistanceX", 9, 2, 9, 1, Q("3 mm")))
sketch1.addConstraint(Sketcher.Constraint("DistanceX", 60, 1, 60, 2, Q("102 mm")))
sketch1.addConstraint(Sketcher.Constraint("DistanceX", 70, 1, 70, 2, Q("38 mm")))
sketch1.addConstraint(Sketcher.Constraint("DistanceY", 2, 1, 2, 2, Q("40 mm")))
sketch1.addConstraint(Sketcher.Constraint("DistanceX", 5, 1, 5, 2, Q("1.5 mm")))
sketch1.addConstraint(Sketcher.Constraint("DistanceX", 15, 2, 15, 1, Q("110.5 mm")))
sketch1.addConstraint(Sketcher.Constraint("DistanceX", 43, 2, 43, 1, Q("8.2 mm")))
sketch1.addConstraint(Sketcher.Constraint("DistanceX", 47, 2, 47, 1, Q("2.2 mm")))
sketch1.addConstraint(Sketcher.Constraint("DistanceY", 4, 2, 4, 1, Q("2.5 mm")))
sketch1.addConstraint(Sketcher.Constraint("DistanceY", 6, 2, 6, 1, Q("2.6 mm")))
sketch1.addConstraint(Sketcher.Constraint("DistanceY", 69, 1, 69, 2, Q("10.2 mm")))
sketch1.addConstraint(Sketcher.Constraint("DistanceY", 62, 2, 62, 1, Q("55.375 mm")))
sketch1.addConstraint(Sketcher.Constraint("DistanceX", 0, 1, 0, 2, Q("135.756885 mm")))
sketch1.addConstraint(Sketcher.Constraint("DistanceY", 42, 3, -1, 1, Q("9.095982 mm")))
sketch1.addConstraint(Sketcher.Constraint("DistanceY", -1, 1, 61, 3, Q("58.279018 mm")))
sketch1.addConstraint(Sketcher.Constraint("DistanceY", -1, 1, 68, 3, Q("53.779018 mm")))
sketch1.addConstraint(Sketcher.Constraint("DistanceY", 0, 2, -1, 1, Q("13.095982 mm")))
sketch1.addConstraint(Sketcher.Constraint("DistanceY", -1, 1, 1, 2, Q("33.779018 mm")))
sketch1.addConstraint(Sketcher.Constraint("DistanceX", 41, 2, -1, 1, Q("68.061769 mm")))
sketch1.addConstraint(Sketcher.Constraint("DistanceY", 43, 2, -1, 1, Q("10.195982 mm")))
sketch1.addConstraint(Sketcher.Constraint("DistanceY", -1, 1, 47, 2, Q("18.241518 mm")))
sketch1.addConstraint(Sketcher.Constraint("DistanceY", -1, 1, 69, 2, Q("58.879018 mm")))
sketch1.addConstraint(Sketcher.Constraint("Distance", 1, Q("114.185113 mm")))
sketch1.addConstraint(Sketcher.Constraint("DistanceX", 42, 3, -1, 1, Q("33.184884 mm")))
sketch1.addConstraint(Sketcher.Constraint("DistanceX", -1, 1, 55, 3, Q("32.815116 mm")))
sketch1.addConstraint(Sketcher.Constraint("DistanceX", -1, 1, 61, 3, Q("50.815116 mm")))
sketch1.addConstraint(Sketcher.Constraint("DistanceX", 68, 3, -1, 1, Q("150.184884 mm")))
sketch1.addConstraint(Sketcher.Constraint("DistanceX", 73, 3, -1, 1, Q("64.184884 mm")))
sketch1.addConstraint(Sketcher.Constraint("DistanceX", -1, 1, 74, 3, Q("63.815116 mm")))
sketch1.addConstraint(Sketcher.Constraint("DistanceX", -1, 1, 79, 3, Q("149.815116 mm")))
sketch1.addConstraint(Sketcher.Constraint("DistanceX", 43, 2, -1, 1, Q("22.034884 mm")))
sketch1.addConstraint(Sketcher.Constraint("DistanceX", 47, 2, -1, 1, Q("65.284884 mm")))
sketch1.addConstraint(Sketcher.Constraint("DistanceX", -1, 1, 51, 2, Q("13.465116 mm")))
sketch1.addConstraint(Sketcher.Constraint("DistanceX", -1, 1, 56, 2, Q("62.715116 mm")))
sketch1.addConstraint(Sketcher.Constraint("DistanceX", 69, 2, -1, 1, Q("140.184884 mm")))
sketch1.addConstraint(Sketcher.Constraint("DistanceX", -1, 1, 75, 2, Q("139.815116 mm")))
sketch1.setExpression("Constraints[197]", "Params.sketch1_diameter")
sketch1.setExpression("Constraints[198]", "Params.sketch1_diameter2")
sketch1.setExpression("Constraints[199]", "Params.sketch1_width")
sketch1.setExpression("Constraints[200]", "Params.sketch1_width2")
sketch1.setExpression("Constraints[201]", "Params.sketch1_width3")
pad1 = body.newObject("PartDesign::Pad", "Pad")
pad1.Profile = sketch1
pad1.setExpression("Length", "Params.pad1_length")

doc.recompute()
